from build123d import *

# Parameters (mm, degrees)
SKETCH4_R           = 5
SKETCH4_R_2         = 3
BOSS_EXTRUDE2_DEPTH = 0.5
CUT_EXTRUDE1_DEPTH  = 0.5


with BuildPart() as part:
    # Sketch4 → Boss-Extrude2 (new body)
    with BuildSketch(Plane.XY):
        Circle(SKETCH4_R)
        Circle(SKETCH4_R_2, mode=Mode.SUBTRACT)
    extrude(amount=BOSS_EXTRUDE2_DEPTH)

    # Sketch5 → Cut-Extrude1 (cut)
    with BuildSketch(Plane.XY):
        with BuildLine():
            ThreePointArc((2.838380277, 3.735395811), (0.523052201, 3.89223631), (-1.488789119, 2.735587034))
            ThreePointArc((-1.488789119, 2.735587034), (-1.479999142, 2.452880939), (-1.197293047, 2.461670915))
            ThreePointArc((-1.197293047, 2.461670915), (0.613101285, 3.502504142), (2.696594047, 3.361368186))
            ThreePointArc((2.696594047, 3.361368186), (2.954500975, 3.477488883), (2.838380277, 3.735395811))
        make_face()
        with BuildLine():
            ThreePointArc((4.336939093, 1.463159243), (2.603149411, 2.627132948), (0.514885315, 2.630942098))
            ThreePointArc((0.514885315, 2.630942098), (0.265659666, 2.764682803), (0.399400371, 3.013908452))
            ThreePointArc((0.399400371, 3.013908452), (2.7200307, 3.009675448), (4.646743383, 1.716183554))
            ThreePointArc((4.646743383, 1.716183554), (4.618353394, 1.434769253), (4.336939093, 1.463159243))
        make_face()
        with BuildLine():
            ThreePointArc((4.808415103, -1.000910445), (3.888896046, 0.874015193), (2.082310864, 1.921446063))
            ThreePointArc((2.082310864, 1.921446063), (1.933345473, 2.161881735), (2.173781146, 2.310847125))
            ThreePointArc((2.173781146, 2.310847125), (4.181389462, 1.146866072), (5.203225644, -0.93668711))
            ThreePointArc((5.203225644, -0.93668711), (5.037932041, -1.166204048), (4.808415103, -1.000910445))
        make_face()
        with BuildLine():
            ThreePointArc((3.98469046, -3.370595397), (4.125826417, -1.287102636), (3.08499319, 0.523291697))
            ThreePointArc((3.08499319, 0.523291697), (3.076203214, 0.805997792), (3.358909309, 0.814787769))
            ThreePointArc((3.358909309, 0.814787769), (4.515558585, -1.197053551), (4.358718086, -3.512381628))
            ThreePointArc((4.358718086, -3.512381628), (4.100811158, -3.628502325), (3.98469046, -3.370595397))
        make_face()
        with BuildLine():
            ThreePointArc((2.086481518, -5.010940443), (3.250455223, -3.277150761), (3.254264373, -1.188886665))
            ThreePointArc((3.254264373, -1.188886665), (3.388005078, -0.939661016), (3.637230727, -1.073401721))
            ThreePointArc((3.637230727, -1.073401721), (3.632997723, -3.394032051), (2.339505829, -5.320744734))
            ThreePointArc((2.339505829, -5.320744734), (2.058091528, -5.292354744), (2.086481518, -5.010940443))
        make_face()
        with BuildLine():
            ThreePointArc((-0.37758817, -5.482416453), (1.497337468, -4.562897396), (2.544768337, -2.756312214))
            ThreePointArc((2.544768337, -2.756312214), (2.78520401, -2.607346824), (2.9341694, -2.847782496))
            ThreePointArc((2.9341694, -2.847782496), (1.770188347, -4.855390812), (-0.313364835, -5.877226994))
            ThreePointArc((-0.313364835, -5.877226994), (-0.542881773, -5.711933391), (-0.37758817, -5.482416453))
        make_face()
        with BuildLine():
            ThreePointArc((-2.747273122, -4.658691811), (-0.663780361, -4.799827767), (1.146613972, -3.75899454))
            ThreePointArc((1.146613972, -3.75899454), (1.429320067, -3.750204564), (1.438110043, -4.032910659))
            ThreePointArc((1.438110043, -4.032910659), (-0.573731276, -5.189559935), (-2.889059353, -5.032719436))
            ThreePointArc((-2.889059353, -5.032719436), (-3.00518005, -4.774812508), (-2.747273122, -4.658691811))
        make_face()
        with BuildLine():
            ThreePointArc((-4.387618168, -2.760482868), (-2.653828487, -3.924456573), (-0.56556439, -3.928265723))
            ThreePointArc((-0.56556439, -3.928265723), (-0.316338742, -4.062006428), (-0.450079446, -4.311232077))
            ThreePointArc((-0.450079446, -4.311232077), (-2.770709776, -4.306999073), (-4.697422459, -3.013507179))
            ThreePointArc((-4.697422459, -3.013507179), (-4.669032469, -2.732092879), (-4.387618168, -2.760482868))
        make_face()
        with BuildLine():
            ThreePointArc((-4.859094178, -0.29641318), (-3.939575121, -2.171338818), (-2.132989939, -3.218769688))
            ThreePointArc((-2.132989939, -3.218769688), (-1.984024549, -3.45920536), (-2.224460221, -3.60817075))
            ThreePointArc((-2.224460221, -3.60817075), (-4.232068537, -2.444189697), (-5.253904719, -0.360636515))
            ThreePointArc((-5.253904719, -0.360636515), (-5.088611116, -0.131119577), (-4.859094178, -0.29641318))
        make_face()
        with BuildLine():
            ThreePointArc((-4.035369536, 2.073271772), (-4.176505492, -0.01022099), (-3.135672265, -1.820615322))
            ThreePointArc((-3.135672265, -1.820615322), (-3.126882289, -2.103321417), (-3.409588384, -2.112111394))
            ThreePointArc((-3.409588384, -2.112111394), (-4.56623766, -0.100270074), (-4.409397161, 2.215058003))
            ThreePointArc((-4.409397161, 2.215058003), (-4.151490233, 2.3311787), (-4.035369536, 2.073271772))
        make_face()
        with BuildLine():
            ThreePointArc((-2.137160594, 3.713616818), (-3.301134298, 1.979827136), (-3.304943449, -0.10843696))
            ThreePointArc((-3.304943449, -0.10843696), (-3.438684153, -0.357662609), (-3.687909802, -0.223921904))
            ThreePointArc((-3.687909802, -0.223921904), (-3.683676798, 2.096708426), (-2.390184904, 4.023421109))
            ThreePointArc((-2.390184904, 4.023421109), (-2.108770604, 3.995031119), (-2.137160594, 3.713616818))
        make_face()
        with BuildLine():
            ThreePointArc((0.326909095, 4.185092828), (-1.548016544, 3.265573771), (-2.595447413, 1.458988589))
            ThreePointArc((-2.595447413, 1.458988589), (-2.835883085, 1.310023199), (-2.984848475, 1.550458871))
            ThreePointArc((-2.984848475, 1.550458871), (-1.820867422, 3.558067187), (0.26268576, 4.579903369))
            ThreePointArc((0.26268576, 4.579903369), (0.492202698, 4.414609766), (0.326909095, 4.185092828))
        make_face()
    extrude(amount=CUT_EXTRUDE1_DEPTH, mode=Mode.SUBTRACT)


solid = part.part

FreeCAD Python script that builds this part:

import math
import FreeCAD as App
import Part
import Sketcher

V = App.Vector

doc = App.newDocument("Part")
body = doc.addObject("PartDesign::Body", "Body")

sketch1 = doc.addObject("Sketcher::SketchObject", "Sketch")
body.addObject(sketch1)
sketch1.AttachmentSupport = (doc.XY_Plane, [""])
sketch1.MapMode = "FlatFace"
sketch1.addGeometry([
    Part.Circle(V(0, 0, 0), V(0, 0, 1), 5),
    Part.Circle(V(0, 0, 0), V(0, 0, 1), 3),
], False)
sketch1.addConstraint([
    Sketcher.Constraint("Coincident", 0, 3, -1, 1),
    Sketcher.Constraint("Coincident", 1, 3, -1, 1),
    Sketcher.Constraint("Diameter", 0, 10.0),
    Sketcher.Constraint("Diameter", 1, 6.0),
])
pad1 = doc.addObject("PartDesign::Pad", "Pad")
body.addObject(pad1)
pad1.Profile = sketch1
pad1.Length = 0.5

sketch2 = doc.addObject("Sketcher::SketchObject", "Sketch001")
body.addObject(sketch2)
sketch2.AttachmentSupport = (doc.XY_Plane, [""])
sketch2.MapMode = "FlatFace"
sketch2.addGeometry([
    Part.ArcOfCircle(Part.Circle(V(1.422368, 0, 0), V(0, 0, 1), 3.994781), math.radians(69.239306), math.radians(136.780883)),
    Part.ArcOfCircle(Part.Circle(V(-1.343041, 2.598629, 0), V(0, 0, 1), 0.2), math.radians(136.780883), math.radians(316.780882)),
    Part.ArcOfCircle(Part.Circle(V(1.422368, 0, 0), V(0, 0, 1), 3.594781), math.radians(69.239306), math.radians(136.780883)),
    Part.ArcOfCircle(Part.Circle(V(2.767487, 3.548382, 0), V(0, 0, 1), 0.2), math.radians(-110.760695), math.radians(69.239306)),
    Part.ArcOfCircle(Part.Circle(V(1.552743, -0.810758, 0), V(0, 0, 1), 3.594781), math.radians(39.239306), math.radians(106.780883)),
    Part.ArcOfCircle(Part.Circle(V(4.491841, 1.589671, 0), V(0, 0, 1), 0.2), math.radians(-140.760694), math.radians(39.239306)),
    Part.ArcOfCircle(Part.Circle(V(1.552743, -0.810758, 0), V(0, 0, 1), 3.994781), math.radians(39.239306), math.radians(106.780883)),
    Part.ArcOfCircle(Part.Circle(V(0.457143, 2.822425, 0), V(0, 0, 1), 0.2), math.radians(106.780883), math.radians(286.780883)),
    Part.ArcOfCircle(Part.Circle(V(1.260272, -1.578082, 0), V(0, 0, 1), 3.594781), math.radians(9.239306), math.radians(76.780882)),
    Part.ArcOfCircle(Part.Circle(V(5.00582, -0.968799, 0), V(0, 0, 1), 0.2), math.radians(-170.760694), math.radians(9.239305)),
    Part.ArcOfCircle(Part.Circle(V(1.260272, -1.578082, 0), V(0, 0, 1), 3.994781), math.radians(9.239306), math.radians(76.780883)),
    Part.ArcOfCircle(Part.Circle(V(2.128046, 2.116147, 0), V(0, 0, 1), 0.2), math.radians(76.780882), math.radians(256.780883)),
    Part.ArcOfCircle(Part.Circle(V(0.623322, -2.096369, 0), V(0, 0, 1), 3.594781), math.radians(-20.760694), math.radians(46.780883)),
    Part.ArcOfCircle(Part.Circle(V(4.171704, -3.441489, 0), V(0, 0, 1), 0.2), math.radians(159.239306), math.radians(339.239305)),
    Part.ArcOfCircle(Part.Circle(V(0.623322, -2.096369, 0), V(0, 0, 1), 3.994781), math.radians(-20.760694), math.radians(46.780883)),
    Part.ArcOfCircle(Part.Circle(V(3.221951, 0.66904, 0), V(0, 0, 1), 0.2), math.radians(46.780883), math.radians(226.780882)),
    Part.ArcOfCircle(Part.Circle(V(-0.187436, -2.226744, 0), V(0, 0, 1), 3.594781), math.radians(-50.760694), math.radians(16.780883)),
    Part.ArcOfCircle(Part.Circle(V(2.212994, -5.165843, 0), V(0, 0, 1), 0.2), math.radians(129.239306), math.radians(309.239306)),
    Part.ArcOfCircle(Part.Circle(V(-0.187436, -2.226744, 0), V(0, 0, 1), 3.994781), math.radians(-50.760694), math.radians(16.780883)),
    Part.ArcOfCircle(Part.Circle(V(3.445748, -1.131144, 0), V(0, 0, 1), 0.2), math.radians(16.780883), math.radians(196.780883)),
    Part.ArcOfCircle(Part.Circle(V(-0.95476, -1.934273, 0), V(0, 0, 1), 3.594781), math.radians(-80.760694), math.radians(-13.219117)),
    Part.ArcOfCircle(Part.Circle(V(-0.345477, -5.679822, 0), V(0, 0, 1), 0.2), math.radians(99.239306), math.radians(279.239305)),
    Part.ArcOfCircle(Part.Circle(V(-0.95476, -1.934273, 0), V(0, 0, 1), 3.994781), math.radians(-80.760694), math.radians(-13.219117)),
    Part.ArcOfCircle(Part.Circle(V(2.739469, -2.802047, 0), V(0, 0, 1), 0.2), math.radians(-13.219117), math.radians(166.780882)),
    Part.ArcOfCircle(Part.Circle(V(-1.473047, -1.297324, 0), V(0, 0, 1), 3.594781), math.radians(-110.760694), math.radians(-43.219118)),
    Part.ArcOfCircle(Part.Circle(V(-2.818166, -4.845706, 0), V(0, 0, 1), 0.2), math.radians(69.239306), math.radians(249.239305)),
    Part.ArcOfCircle(Part.Circle(V(-1.473047, -1.297324, 0), V(0, 0, 1), 3.994781), math.radians(-110.760694), math.radians(-43.219117)),
    Part.ArcOfCircle(Part.Circle(V(1.292362, -3.895953, 0), V(0, 0, 1), 0.2), math.radians(-43.219118), math.radians(136.780882)),
    Part.ArcOfCircle(Part.Circle(V(-1.603422, -0.486566, 0), V(0, 0, 1), 3.594781), math.radians(-140.760694), math.radians(-73.219117)),
    Part.ArcOfCircle(Part.Circle(V(-4.54252, -2.886995, 0), V(0, 0, 1), 0.2), math.radians(39.239306), math.radians(219.239305)),
    Part.ArcOfCircle(Part.Circle(V(-1.603422, -0.486566, 0), V(0, 0, 1), 3.994781), math.radians(-140.760694), math.radians(-73.219117)),
    Part.ArcOfCircle(Part.Circle(V(-0.507822, -4.119749, 0), V(0, 0, 1), 0.2), math.radians(-73.219117), math.radians(106.780882)),
    Part.ArcOfCircle(Part.Circle(V(-1.310951, 0.280759, 0), V(0, 0, 1), 3.594781), math.radians(-170.760694), math.radians(-103.219118)),
    Part.ArcOfCircle(Part.Circle(V(-5.056499, -0.328525, 0), V(0, 0, 1), 0.2), math.radians(9.239305), math.radians(189.239306)),
    Part.ArcOfCircle(Part.Circle(V(-1.310951, 0.280759, 0), V(0, 0, 1), 3.994781), math.radians(-170.760694), math.radians(-103.219117)),
    Part.ArcOfCircle(Part.Circle(V(-2.178725, -3.41347, 0), V(0, 0, 1), 0.2), math.radians(-103.219118), math.radians(76.780882)),
    Part.ArcOfCircle(Part.Circle(V(-0.674001, 0.799046, 0), V(0, 0, 1), 3.594781), math.radians(159.239306), math.radians(226.780883)),
    Part.ArcOfCircle(Part.Circle(V(-4.222383, 2.144165, 0), V(0, 0, 1), 0.2), math.radians(-20.760695), math.radians(159.239306)),
    Part.ArcOfCircle(Part.Circle(V(-0.674001, 0.799046, 0), V(0, 0, 1), 3.994781), math.radians(159.239306), math.radians(226.780883)),
    Part.ArcOfCircle(Part.Circle(V(-3.27263, -1.966363, 0), V(0, 0, 1), 0.2), math.radians(-133.219117), math.radians(46.780882)),
    Part.ArcOfCircle(Part.Circle(V(0.136757, 0.929421, 0), V(0, 0, 1), 3.594781), math.radians(129.239306), math.radians(196.780882)),
    Part.ArcOfCircle(Part.Circle(V(-2.263673, 3.868519, 0), V(0, 0, 1), 0.2), math.radians(-50.760694), math.radians(129.239305)),
    Part.ArcOfCircle(Part.Circle(V(0.136757, 0.929421, 0), V(0, 0, 1), 3.994781), math.radians(129.239306), math.radians(196.780883)),
    Part.ArcOfCircle(Part.Circle(V(-3.496427, -0.166179, 0), V(0, 0, 1), 0.2), math.radians(-163.219118), math.radians(16.780883)),
    Part.ArcOfCircle(Part.Circle(V(0.904081, 0.63695, 0), V(0, 0, 1), 3.594781), math.radians(99.239306), math.radians(166.780883)),
    Part.ArcOfCircle(Part.Circle(V(0.294797, 4.382498, 0), V(0, 0, 1), 0.2), math.radians(-80.760694), math.radians(99.239305)),
    Part.ArcOfCircle(Part.Circle(V(0.904081, 0.63695, 0), V(0, 0, 1), 3.994781), math.radians(99.239306), math.radians(166.780883)),
    Part.ArcOfCircle(Part.Circle(V(-2.790148, 1.504724, 0), V(0, 0, 1), 0.2), math.radians(166.780882), math.radians(346.780882)),
], False)
sketch2.addConstraint([
    Sketcher.Constraint("Coincident", 0, 2, 1, 1),
    Sketcher.Constraint("Coincident", 1, 2, 2, 2),
    Sketcher.Constraint("Coincident", 2, 1, 3, 1),
    Sketcher.Constraint("Coincident", 3, 2, 0, 1),
    Sketcher.Constraint("Coincident", 4, 1, 5, 1),
    Sketcher.Constraint("Coincident", 5, 2, 6, 1),
    Sketcher.Constraint("Coincident", 6, 2, 7, 1),
    Sketcher.Constraint("Coincident", 7, 2, 4, 2),
    Sketcher.Constraint("Coincident", 8, 1, 9, 1),
    Sketcher.Constraint("Coincident", 9, 2, 10, 1),
    Sketcher.Constraint("Coincident", 10, 2, 11, 1),
    Sketcher.Constraint("Coincident", 11, 2, 8, 2),
    Sketcher.Constraint("Coincident", 12, 1, 13, 1),
    Sketcher.Constraint("Coincident", 13, 2, 14, 1),
    Sketcher.Constraint("Coincident", 14, 2, 15, 1),
    Sketcher.Constraint("Coincident", 15, 2, 12, 2),
    Sketcher.Constraint("Coincident", 16, 1, 17, 1),
    Sketcher.Constraint("Coincident", 17, 2, 18, 1),
    Sketcher.Constraint("Coincident", 18, 2, 19, 1),
    Sketcher.Constraint("Coincident", 19, 2, 16, 2),
    Sketcher.Constraint("Coincident", 20, 1, 21, 1),
    Sketcher.Constraint("Coincident", 21, 2, 22, 1),
    Sketcher.Constraint("Coincident", 22, 2, 23, 1),
    Sketcher.Constraint("Coincident", 23, 2, 20, 2),
    Sketcher.Constraint("Coincident", 24, 1, 25, 1),
    Sketcher.Constraint("Coincident", 25, 2, 26, 1),
    Sketcher.Constraint("Coincident", 26, 2, 27, 1),
    Sketcher.Constraint("Coincident", 27, 2, 24, 2),
    Sketcher.Constraint("Coincident", 28, 1, 29, 1),
    Sketcher.Constraint("Coincident", 29, 2, 30, 1),
    Sketcher.Constraint("Coincident", 30, 2, 31, 1),
    Sketcher.Constraint("Coincident", 31, 2, 28, 2),
    Sketcher.Constraint("Coincident", 32, 1, 33, 1),
    Sketcher.Constraint("Coincident", 33, 2, 34, 1),
    Sketcher.Constraint("Coincident", 34, 2, 35, 1),
    Sketcher.Constraint("Coincident", 35, 2, 32, 2),
    Sketcher.Constraint("Coincident", 36, 1, 37, 1),
    Sketcher.Constraint("Coincident", 37, 2, 38, 1),
    Sketcher.Constraint("Coincident", 38, 2, 39, 1),
    Sketcher.Constraint("Coincident", 39, 2, 36, 2),
    Sketcher.Constraint("Coincident", 40, 1, 41, 1),
    Sketcher.Constraint("Coincident", 41, 2, 42, 1),
    Sketcher.Constraint("Coincident", 42, 2, 43, 1),
    Sketcher.Constraint("Coincident", 43, 2, 40, 2),
    Sketcher.Constraint("Coincident", 44, 1, 45, 1),
    Sketcher.Constraint("Coincident", 45, 2, 46, 1),
    Sketcher.Constraint("Coincident", 46, 2, 47, 1),
    Sketcher.Constraint("Coincident", 47, 2, 44, 2),
    Sketcher.Constraint("Coincident", 2, 3, 0, 3),
    Sketcher.Constraint("Coincident", 6, 3, 4, 3),
    Sketcher.Constraint("Coincident", 10, 3, 8, 3),
    Sketcher.Constraint("Coincident", 14, 3, 12, 3),
    Sketcher.Constraint("Coincident", 18, 3, 16, 3),
    Sketcher.Constraint("Coincident", 22, 3, 20, 3),
    Sketcher.Constraint("Coincident", 26, 3, 24, 3),
    Sketcher.Constraint("Coincident", 30, 3, 28, 3),
    Sketcher.Constraint("Coincident", 34, 3, 32, 3),
    Sketcher.Constraint("Coincident", 38, 3, 36, 3),
    Sketcher.Constraint("Coincident", 42, 3, 40, 3),
    Sketcher.Constraint("Coincident", 46, 3, 44, 3),
    Sketcher.Constraint("PointOnObject", 0, 3, -1),
    Sketcher.Constraint("Radius", 1, 0.2),
    Sketcher.Constraint("Radius", 5, 0.2),
    Sketcher.Constraint("Radius", 9, 0.2),
    Sketcher.Constraint("Radius", 13, 0.2),
    Sketcher.Constraint("Radius", 17, 0.2),
    Sketcher.Constraint("Radius", 21, 0.2),
    Sketcher.Constraint("Radius", 25, 0.2),
    Sketcher.Constraint("Radius", 29, 0.2),
    Sketcher.Constraint("Radius", 33, 0.2),
    Sketcher.Constraint("Radius", 37, 0.2),
    Sketcher.Constraint("Radius", 41, 0.2),
    Sketcher.Constraint("Radius", 45, 0.2),
    Sketcher.Constraint("Radius", 0, 3.994781),
    Sketcher.Constraint("Radius", 4, 3.594781),
    Sketcher.Constraint("Radius", 8, 3.594781),
    Sketcher.Constraint("Radius", 12, 3.594781),
    Sketcher.Constraint("Radius", 16, 3.594781),
    Sketcher.Constraint("Radius", 20, 3.594781),
    Sketcher.Constraint("Radius", 24, 3.594781),
    Sketcher.Constraint("Radius", 28, 3.594781),
    Sketcher.Constraint("Radius", 32, 3.594781),
    Sketcher.Constraint("Radius", 36, 3.594781),
    Sketcher.Constraint("Radius", 40, 3.594781),
    Sketcher.Constraint("Radius", 44, 3.594781),
    Sketcher.Constraint("DistanceX", 36, 3, -1, 1, 0.674001),
    Sketcher.Constraint("DistanceY", 9, 3, -1, 1, 0.968799),
    Sketcher.Constraint("DistanceX", 33, 3, -1, 1, 5.056499),
    Sketcher.Constraint("DistanceY", -1, 1, 45, 3, 4.382498),
    Sketcher.Constraint("DistanceX", -1, 1, 6, 2, 0.3994),
    Sketcher.Constraint("DistanceY", 18, 2, -1, 1, 1.073402),
    Sketcher.Constraint("DistanceX", -1, 1, 0, 3, 1.422368),
    Sketcher.Constraint("DistanceX", 1, 3, -1, 1, 1.343041),
    Sketcher.Constraint("DistanceY", -1, 1, 3, 3, 3.548382),
    Sketcher.Constraint("DistanceX", -1, 1, 5, 3, 4.491841),
    Sketcher.Constraint("DistanceY", -1, 1, 5, 3, 1.589671),
    Sketcher.Constraint("DistanceX", -1, 1, 8, 3, 1.260272),
    Sketcher.Constraint("DistanceX", -1, 1, 9, 3, 5.00582),
    Sketcher.Constraint("DistanceY", 12, 3, -1, 1, 2.096369),
    Sketcher.Constraint("DistanceY", 13, 3, -1, 1, 3.441489),
    Sketcher.Constraint("DistanceX", -1, 1, 15, 3, 3.221951),
    Sketcher.Constraint("DistanceY", -1, 1, 15, 3, 0.66904),
    Sketcher.Constraint("DistanceX", 20, 3, -1, 1, 0.95476),
    Sketcher.Constraint("DistanceY", 21, 3, -1, 1, 5.679822),
    Sketcher.Constraint("DistanceX", -1, 1, 23, 3, 2.739469),
    Sketcher.Constraint("DistanceX", 28, 3, -1, 1, 1.603422),
    Sketcher.Constraint("DistanceX", 29, 3, -1, 1, 4.54252),
    Sketcher.Constraint("DistanceX", 31, 3, -1, 1, 0.507822),
    Sketcher.Constraint("DistanceY", 31, 3, -1, 1, 4.119749),
    Sketcher.Constraint("DistanceX", 32, 3, -1, 1, 1.310951),
    Sketcher.Constraint("DistanceY", -1, 1, 32, 3, 0.280759),
    Sketcher.Constraint("DistanceY", 35, 3, -1, 1, 3.41347),
    Sketcher.Constraint("DistanceX", 39, 3, -1, 1, 3.27263),
    Sketcher.Constraint("DistanceY", -1, 1, 40, 3, 0.929421),
    Sketcher.Constraint("DistanceY", -1, 1, 41, 3, 3.868519),
    Sketcher.Constraint("DistanceY", 43, 3, -1, 1, 0.166179),
    Sketcher.Constraint("DistanceX", -1, 1, 44, 3, 0.904081),
    Sketcher.Constraint("DistanceY", -1, 1, 44, 3, 0.63695),
    Sketcher.Constraint("DistanceX", 0, 2, -1, 1, 1.488789),
    Sketcher.Constraint("DistanceY", -1, 1, 1, 2, 2.461671),
    Sketcher.Constraint("DistanceY", -1, 1, 2, 1, 3.361368),
    Sketcher.Constraint("DistanceX", -1, 1, 3, 2, 2.83838),
    Sketcher.Constraint("DistanceX", -1, 1, 4, 1, 4.336939),
    Sketcher.Constraint("DistanceY", -1, 1, 6, 2, 3.013908),
    Sketcher.Constraint("DistanceY", 8, 1, -1, 1, 1.00091),
    Sketcher.Constraint("DistanceX", -1, 1, 10, 2, 2.173781),
    Sketcher.Constraint("DistanceX", -1, 1, 11, 2, 2.082311),
    Sketcher.Constraint("DistanceX", -1, 1, 12, 1, 3.98469),
    Sketcher.Constraint("DistanceX", -1, 1, 13, 2, 4.358718),
    Sketcher.Constraint("DistanceX", -1, 1, 14, 2, 3.358909),
    Sketcher.Constraint("DistanceY", -1, 1, 15, 2, 0.523292),
    Sketcher.Constraint("DistanceX", -1, 1, 16, 1, 2.086482),
    Sketcher.Constraint("DistanceY", 16, 1, -1, 1, 5.01094),
    Sketcher.Constraint("DistanceX", -1, 1, 18, 2, 3.637231),
    Sketcher.Constraint("DistanceX", 20, 1, -1, 1, 0.377588),
    Sketcher.Constraint("DistanceX", -1, 1, 22, 2, 2.934169),
    Sketcher.Constraint("DistanceX", -1, 1, 23, 2, 2.544768),
    Sketcher.Constraint("DistanceY", 24, 1, -1, 1, 4.658692),
    Sketcher.Constraint("DistanceX", 25, 2, -1, 1, 2.889059),
    Sketcher.Constraint("DistanceY", 25, 2, -1, 1, 5.032719),
    Sketcher.Constraint("DistanceX", -1, 1, 26, 2, 1.43811),
    Sketcher.Constraint("DistanceY", 26, 2, -1, 1, 4.032911),
    Sketcher.Constraint("DistanceX", 28, 1, -1, 1, 4.387618),
    Sketcher.Constraint("DistanceX", 30, 2, -1, 1, 0.450079),
    Sketcher.Constraint("DistanceX", 34, 2, -1, 1, 2.22446),
    Sketcher.Constraint("DistanceX", 35, 2, -1, 1, 2.13299),
    Sketcher.Constraint("DistanceX", 36, 1, -1, 1, 4.03537),
    Sketcher.Constraint("DistanceY", -1, 1, 36, 1, 2.073272),
    Sketcher.Constraint("DistanceY", -1, 1, 37, 2, 2.215058),
    Sketcher.Constraint("DistanceX", 38, 2, -1, 1, 3.409588),
    Sketcher.Constraint("DistanceX", 40, 1, -1, 1, 2.137161),
    Sketcher.Constraint("DistanceY", -1, 1, 41, 2, 4.023421),
    Sketcher.Constraint("DistanceX", 42, 2, -1, 1, 3.68791),
    Sketcher.Constraint("DistanceY", 42, 2, -1, 1, 0.223922),
    Sketcher.Constraint("DistanceX", -1, 1, 44, 1, 0.326909),
    Sketcher.Constraint("DistanceX", 46, 2, -1, 1, 2.984848),
    Sketcher.Constraint("DistanceY", -1, 1, 47, 2, 1.458989),
    Sketcher.Constraint("DistanceX", -1, 1, 7, 3, 0.457143),
    Sketcher.Constraint("DistanceX", -1, 1, 11, 3, 2.128046),
    Sketcher.Constraint("DistanceX", -1, 1, 17, 3, 2.212994),
    Sketcher.Constraint("DistanceX", -1, 1, 19, 3, 3.445748),
    Sketcher.Constraint("DistanceY", 20, 3, -1, 1, 1.934273),
    Sketcher.Constraint("DistanceX", 25, 3, -1, 1, 2.818166),
    Sketcher.Constraint("DistanceX", -1, 1, 27, 3, 1.292362),
    Sketcher.Constraint("DistanceX", 37, 3, -1, 1, 4.222383),
    Sketcher.Constraint("DistanceX", 47, 3, -1, 1, 2.790148),
    Sketcher.Constraint("DistanceX", -1, 1, 5, 2, 4.646743),
    Sketcher.Constraint("DistanceX", -1, 1, 7, 2, 0.514885),
    Sketcher.Constraint("DistanceX", -1, 1, 9, 2, 5.203226),
    Sketcher.Constraint("DistanceX", -1, 1, 17, 2, 2.339506),
    Sketcher.Constraint("DistanceX", -1, 1, 19, 2, 3.254264),
    Sketcher.Constraint("DistanceX", 21, 2, -1, 1, 0.313365),
    Sketcher.Constraint("DistanceX", -1, 1, 27, 2, 1.146614),
    Sketcher.Constraint("DistanceX", 29, 2, -1, 1, 4.697422),
    Sketcher.Constraint("DistanceX", 31, 2, -1, 1, 0.565564),
    Sketcher.Constraint("DistanceX", 32, 1, -1, 1, 4.859094),
    Sketcher.Constraint("DistanceX", 33, 2, -1, 1, 5.253905),
    Sketcher.Constraint("DistanceX", 39, 2, -1, 1, 3.135672),
    Sketcher.Constraint("DistanceX", 43, 2, -1, 1, 3.304943),
    Sketcher.Constraint("DistanceX", -1, 1, 45, 2, 0.262686),
])
pocket1 = doc.addObject("PartDesign::Pocket", "Pocket")
body.addObject(pocket1)
pocket1.Profile = sketch2
pocket1.Length = 0.5
pocket1.Reversed = True

doc.recompute()
